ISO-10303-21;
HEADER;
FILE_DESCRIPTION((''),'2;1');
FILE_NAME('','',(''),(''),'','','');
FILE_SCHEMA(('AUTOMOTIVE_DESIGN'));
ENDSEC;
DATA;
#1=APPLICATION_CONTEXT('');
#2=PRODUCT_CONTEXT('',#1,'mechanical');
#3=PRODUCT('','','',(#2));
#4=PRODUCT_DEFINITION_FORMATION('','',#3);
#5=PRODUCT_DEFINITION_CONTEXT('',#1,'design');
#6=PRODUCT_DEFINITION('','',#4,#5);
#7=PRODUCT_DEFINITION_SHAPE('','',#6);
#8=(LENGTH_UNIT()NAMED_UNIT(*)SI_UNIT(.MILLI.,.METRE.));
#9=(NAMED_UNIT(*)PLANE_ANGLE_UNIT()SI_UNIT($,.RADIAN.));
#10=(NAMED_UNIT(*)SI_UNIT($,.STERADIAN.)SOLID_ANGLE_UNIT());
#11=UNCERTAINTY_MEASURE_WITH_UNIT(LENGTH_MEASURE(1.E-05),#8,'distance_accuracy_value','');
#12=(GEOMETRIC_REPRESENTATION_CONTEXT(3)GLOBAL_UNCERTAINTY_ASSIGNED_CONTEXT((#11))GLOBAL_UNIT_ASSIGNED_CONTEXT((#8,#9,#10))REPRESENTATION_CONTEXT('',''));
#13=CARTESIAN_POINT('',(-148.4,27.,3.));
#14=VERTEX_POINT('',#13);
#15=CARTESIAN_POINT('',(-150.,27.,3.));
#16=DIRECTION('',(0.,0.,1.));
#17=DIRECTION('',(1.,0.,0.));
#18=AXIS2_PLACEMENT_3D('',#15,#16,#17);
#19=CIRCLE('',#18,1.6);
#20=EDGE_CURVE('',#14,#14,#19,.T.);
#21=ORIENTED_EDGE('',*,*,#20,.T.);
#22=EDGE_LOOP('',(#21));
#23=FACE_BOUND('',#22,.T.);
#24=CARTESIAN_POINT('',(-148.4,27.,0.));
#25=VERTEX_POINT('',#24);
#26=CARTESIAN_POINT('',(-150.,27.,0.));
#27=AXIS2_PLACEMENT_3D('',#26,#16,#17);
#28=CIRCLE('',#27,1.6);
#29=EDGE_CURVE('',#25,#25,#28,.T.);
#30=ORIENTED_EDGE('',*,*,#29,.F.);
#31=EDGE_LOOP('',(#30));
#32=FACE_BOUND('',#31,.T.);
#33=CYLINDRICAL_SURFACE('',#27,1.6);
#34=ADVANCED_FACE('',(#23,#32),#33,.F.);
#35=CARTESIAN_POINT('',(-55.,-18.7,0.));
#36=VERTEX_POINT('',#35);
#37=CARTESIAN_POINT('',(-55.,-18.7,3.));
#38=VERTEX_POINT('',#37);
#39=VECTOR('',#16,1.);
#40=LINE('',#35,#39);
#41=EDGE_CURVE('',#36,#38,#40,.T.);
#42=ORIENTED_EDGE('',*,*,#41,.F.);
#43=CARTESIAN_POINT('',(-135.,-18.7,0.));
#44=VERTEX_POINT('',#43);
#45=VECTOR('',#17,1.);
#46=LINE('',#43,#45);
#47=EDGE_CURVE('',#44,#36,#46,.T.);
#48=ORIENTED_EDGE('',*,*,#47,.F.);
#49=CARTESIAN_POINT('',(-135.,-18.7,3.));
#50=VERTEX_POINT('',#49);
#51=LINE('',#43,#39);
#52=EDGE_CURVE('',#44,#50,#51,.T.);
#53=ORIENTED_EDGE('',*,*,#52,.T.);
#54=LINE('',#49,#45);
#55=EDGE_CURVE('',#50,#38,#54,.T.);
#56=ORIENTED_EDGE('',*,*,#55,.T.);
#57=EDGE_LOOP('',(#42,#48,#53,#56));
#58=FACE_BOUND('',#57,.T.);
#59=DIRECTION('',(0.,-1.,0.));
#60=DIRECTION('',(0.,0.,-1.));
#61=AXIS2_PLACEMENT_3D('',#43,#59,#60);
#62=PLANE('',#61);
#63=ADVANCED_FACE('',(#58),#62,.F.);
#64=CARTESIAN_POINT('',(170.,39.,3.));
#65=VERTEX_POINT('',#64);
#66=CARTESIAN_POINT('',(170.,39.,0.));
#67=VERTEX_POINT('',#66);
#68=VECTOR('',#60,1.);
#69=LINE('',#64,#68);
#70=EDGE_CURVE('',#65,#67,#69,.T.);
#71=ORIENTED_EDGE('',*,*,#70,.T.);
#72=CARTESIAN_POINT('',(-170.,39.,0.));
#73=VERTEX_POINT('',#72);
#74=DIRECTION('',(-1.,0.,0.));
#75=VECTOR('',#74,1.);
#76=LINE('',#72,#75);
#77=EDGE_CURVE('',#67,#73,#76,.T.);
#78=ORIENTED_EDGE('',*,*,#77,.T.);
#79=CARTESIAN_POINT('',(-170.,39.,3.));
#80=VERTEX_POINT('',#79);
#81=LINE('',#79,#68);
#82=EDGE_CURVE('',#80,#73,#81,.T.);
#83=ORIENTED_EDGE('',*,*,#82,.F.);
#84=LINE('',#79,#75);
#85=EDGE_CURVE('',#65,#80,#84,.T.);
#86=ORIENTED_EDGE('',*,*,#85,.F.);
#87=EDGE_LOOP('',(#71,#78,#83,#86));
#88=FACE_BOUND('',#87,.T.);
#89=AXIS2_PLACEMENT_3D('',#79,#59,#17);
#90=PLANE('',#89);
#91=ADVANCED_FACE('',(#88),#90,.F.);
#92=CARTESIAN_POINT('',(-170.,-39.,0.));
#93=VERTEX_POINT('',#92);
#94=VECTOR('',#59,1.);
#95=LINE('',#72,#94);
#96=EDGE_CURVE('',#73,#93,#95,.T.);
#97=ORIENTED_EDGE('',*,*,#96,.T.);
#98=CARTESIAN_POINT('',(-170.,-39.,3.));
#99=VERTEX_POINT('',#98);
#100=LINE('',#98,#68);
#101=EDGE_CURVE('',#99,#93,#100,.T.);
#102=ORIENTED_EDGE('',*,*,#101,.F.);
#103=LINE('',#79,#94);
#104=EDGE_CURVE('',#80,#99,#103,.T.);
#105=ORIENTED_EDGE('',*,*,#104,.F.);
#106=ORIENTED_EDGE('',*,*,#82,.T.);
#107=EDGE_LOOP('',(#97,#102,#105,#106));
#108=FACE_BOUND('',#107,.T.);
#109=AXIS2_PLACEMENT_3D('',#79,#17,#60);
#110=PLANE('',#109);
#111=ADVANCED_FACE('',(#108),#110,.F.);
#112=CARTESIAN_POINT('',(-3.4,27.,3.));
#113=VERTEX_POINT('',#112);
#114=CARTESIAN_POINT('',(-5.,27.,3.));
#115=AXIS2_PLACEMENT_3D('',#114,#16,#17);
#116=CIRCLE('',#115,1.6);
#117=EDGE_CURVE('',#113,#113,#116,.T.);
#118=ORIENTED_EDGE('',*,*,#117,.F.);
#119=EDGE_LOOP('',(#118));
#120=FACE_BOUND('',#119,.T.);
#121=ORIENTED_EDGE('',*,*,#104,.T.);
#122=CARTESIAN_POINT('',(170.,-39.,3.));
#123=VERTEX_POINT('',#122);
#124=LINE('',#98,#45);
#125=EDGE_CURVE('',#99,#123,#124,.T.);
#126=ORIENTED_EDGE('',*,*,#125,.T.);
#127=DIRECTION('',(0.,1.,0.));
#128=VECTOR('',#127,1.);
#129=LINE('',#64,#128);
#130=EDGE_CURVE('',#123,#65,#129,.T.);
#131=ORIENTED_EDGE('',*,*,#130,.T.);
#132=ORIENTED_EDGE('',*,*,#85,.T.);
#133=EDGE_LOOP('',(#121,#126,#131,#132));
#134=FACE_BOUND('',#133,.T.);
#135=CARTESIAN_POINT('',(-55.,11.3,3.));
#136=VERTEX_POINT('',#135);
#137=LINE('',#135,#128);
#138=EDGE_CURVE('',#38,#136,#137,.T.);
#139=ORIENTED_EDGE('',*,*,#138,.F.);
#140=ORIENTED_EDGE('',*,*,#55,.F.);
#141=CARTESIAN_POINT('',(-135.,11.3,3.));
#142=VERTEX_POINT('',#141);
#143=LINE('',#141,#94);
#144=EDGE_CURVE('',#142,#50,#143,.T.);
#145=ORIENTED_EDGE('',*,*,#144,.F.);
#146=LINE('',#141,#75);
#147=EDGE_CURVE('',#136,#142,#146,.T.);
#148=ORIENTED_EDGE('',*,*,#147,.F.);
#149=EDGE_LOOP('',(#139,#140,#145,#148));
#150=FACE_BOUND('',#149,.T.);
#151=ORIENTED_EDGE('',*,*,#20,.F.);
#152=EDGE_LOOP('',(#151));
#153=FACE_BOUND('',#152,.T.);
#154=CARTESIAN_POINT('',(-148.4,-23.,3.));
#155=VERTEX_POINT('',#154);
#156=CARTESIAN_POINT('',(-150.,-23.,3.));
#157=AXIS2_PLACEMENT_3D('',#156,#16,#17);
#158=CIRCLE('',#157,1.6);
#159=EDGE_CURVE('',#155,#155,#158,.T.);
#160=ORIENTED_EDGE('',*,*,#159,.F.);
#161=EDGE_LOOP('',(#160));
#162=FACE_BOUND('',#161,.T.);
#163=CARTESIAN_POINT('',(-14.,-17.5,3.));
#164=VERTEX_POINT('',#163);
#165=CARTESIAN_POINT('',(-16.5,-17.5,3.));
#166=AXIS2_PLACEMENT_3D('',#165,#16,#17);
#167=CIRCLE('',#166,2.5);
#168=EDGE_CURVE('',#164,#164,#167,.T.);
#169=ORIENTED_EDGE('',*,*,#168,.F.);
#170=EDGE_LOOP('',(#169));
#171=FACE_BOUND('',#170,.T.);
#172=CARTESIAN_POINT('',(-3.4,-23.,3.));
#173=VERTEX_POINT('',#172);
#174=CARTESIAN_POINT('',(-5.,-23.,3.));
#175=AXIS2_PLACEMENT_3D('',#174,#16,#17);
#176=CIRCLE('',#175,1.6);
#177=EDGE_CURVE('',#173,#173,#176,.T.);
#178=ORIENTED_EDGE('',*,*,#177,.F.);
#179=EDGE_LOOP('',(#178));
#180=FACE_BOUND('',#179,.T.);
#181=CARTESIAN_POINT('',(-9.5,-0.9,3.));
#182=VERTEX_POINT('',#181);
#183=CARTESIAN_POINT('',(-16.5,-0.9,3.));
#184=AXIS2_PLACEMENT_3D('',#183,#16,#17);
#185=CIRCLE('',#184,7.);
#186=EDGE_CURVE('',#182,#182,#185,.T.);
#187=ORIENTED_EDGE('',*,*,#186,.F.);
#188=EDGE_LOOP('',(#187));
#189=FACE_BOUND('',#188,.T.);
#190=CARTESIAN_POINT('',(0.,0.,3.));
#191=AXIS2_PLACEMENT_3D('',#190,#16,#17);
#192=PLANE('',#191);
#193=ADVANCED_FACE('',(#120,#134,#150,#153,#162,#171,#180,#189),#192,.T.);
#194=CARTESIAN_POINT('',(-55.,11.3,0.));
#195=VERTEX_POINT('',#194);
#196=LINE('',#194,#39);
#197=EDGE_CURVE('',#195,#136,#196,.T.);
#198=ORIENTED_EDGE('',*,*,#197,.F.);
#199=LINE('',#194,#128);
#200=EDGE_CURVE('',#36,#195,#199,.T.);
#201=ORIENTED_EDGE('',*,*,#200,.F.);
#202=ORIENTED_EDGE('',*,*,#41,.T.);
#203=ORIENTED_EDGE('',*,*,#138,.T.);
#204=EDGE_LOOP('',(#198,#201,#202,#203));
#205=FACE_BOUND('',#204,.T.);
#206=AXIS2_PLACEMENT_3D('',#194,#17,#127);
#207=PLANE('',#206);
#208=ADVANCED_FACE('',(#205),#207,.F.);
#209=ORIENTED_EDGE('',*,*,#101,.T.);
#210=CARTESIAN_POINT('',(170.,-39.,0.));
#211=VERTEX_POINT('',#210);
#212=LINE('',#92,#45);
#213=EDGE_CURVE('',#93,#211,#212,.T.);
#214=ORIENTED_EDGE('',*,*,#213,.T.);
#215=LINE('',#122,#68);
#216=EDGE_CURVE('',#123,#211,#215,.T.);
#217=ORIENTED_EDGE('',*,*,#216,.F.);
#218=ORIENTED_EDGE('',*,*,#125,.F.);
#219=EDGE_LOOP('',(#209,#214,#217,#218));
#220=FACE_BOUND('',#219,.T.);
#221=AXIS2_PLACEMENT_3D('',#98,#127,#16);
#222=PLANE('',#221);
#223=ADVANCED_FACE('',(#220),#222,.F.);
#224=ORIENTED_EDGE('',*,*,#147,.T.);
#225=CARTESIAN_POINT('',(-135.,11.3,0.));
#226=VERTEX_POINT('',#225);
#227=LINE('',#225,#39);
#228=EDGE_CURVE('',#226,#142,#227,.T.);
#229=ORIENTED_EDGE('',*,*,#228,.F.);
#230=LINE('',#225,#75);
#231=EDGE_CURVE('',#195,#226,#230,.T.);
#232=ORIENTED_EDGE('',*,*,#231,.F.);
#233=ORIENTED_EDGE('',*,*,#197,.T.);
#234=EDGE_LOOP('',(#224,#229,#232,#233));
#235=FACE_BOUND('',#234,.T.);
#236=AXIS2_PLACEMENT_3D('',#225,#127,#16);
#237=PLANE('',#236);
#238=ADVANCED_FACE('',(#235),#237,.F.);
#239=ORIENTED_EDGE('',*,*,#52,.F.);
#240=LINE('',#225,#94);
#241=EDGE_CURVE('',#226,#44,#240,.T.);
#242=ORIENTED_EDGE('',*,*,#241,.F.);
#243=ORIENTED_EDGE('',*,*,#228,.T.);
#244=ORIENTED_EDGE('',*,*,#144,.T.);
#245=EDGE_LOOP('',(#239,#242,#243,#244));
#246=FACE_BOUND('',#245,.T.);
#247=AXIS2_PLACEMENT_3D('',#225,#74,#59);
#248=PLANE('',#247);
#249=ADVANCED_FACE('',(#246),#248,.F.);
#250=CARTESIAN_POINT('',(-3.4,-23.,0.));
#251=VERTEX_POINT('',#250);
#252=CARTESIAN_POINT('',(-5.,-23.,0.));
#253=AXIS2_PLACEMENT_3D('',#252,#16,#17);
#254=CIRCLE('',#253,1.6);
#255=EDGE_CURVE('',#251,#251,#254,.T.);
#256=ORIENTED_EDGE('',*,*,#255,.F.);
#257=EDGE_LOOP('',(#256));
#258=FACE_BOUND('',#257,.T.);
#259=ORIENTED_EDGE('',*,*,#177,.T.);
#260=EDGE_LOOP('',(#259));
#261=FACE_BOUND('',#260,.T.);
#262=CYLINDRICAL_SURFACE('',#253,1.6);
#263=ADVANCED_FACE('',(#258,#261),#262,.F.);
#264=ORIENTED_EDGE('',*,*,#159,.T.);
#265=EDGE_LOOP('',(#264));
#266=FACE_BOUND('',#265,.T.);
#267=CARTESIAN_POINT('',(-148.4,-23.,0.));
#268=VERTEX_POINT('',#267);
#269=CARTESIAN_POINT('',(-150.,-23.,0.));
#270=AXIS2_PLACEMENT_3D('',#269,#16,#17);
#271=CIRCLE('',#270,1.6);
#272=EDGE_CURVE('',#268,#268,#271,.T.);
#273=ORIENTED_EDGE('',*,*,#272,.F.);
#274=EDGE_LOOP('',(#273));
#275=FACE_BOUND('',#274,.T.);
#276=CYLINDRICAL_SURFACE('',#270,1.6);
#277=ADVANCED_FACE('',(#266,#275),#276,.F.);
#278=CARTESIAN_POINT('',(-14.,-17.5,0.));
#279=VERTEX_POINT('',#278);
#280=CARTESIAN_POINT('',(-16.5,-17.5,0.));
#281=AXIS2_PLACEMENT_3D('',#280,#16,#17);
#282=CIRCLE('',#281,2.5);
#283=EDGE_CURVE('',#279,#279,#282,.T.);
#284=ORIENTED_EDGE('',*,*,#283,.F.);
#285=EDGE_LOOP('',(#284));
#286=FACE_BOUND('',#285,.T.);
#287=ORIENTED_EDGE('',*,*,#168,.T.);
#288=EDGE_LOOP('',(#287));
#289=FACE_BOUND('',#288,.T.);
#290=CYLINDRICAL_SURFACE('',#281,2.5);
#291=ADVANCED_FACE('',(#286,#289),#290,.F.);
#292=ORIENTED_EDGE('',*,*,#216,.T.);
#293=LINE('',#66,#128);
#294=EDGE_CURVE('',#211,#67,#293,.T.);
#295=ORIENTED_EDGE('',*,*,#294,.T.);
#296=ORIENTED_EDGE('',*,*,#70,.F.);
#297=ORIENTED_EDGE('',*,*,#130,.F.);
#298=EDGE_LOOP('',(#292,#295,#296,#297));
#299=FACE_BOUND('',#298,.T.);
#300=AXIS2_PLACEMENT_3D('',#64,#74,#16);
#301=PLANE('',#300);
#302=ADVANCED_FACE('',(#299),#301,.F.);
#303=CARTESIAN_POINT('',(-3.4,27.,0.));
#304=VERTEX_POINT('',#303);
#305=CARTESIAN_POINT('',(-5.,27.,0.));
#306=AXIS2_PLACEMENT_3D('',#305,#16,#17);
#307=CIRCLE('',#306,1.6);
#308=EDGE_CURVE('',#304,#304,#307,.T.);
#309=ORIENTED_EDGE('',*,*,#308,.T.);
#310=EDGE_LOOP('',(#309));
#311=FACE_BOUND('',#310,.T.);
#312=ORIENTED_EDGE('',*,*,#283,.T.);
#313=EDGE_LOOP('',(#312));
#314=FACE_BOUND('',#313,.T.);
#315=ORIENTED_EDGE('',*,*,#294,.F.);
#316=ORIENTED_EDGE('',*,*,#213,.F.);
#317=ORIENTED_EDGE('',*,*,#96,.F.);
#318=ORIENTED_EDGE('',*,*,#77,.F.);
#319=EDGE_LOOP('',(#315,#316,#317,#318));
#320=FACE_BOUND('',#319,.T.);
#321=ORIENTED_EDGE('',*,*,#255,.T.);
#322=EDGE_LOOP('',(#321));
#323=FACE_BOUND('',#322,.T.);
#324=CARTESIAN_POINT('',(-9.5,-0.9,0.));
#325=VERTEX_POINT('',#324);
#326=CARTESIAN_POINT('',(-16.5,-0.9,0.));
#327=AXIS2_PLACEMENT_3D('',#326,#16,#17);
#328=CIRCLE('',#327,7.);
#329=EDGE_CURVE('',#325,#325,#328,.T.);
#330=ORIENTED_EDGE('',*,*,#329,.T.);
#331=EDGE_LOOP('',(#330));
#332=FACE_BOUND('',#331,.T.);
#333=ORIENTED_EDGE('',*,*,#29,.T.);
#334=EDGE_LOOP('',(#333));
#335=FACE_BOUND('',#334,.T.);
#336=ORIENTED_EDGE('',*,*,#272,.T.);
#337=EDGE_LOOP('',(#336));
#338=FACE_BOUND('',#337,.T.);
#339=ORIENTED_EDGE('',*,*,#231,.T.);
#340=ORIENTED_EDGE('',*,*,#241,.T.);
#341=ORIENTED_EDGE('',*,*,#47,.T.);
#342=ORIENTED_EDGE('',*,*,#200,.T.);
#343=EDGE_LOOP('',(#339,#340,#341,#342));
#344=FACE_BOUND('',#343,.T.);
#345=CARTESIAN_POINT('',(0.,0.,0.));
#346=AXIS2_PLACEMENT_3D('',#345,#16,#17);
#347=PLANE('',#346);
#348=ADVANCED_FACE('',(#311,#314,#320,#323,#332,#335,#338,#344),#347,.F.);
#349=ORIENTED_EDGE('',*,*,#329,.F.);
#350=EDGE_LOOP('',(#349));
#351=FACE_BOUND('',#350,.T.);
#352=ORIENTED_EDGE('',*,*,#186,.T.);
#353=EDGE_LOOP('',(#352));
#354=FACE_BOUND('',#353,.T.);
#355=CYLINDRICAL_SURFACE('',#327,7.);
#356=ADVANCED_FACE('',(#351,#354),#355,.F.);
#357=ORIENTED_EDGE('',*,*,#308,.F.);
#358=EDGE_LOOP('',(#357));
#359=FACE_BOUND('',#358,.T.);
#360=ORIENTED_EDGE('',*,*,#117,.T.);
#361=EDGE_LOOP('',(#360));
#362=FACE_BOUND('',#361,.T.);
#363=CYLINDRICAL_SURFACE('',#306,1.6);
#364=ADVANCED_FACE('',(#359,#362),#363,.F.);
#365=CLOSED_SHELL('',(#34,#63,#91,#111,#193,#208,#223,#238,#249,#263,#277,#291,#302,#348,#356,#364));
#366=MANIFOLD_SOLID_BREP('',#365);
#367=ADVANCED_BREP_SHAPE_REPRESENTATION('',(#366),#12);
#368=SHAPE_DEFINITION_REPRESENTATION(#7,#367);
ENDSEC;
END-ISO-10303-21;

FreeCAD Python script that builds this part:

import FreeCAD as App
import Part
import Sketcher
Q = App.Units.Quantity


def add_polygon(sketch, points):
    """Adds a closed chain of lines whose ends are joined by coincident constraints."""
    first, n = sketch.GeometryCount, len(points)
    for a, b in zip(points, points[1:] + points[:1]):
        sketch.addGeometry(Part.LineSegment(App.Vector(*a, 0), App.Vector(*b, 0)), False)
    for i in range(n):
        sketch.addConstraint(Sketcher.Constraint("Coincident", first + i, 2, first + (i + 1) % n, 1))

doc = App.newDocument("Part")
body = doc.addObject("PartDesign::Body", "Body")

sketch1 = body.newObject("Sketcher::SketchObject", "Sketch")
sketch1.AttachmentSupport = (doc.getObject("XY_Plane"), [""])
sketch1.MapMode = "FlatFace"
add_polygon(sketch1, [(-170, 39), (-170, -39), (170, -39), (170, 39)])
sketch1.addConstraint([
    Sketcher.Constraint("Vertical", 0),
    Sketcher.Constraint("Horizontal", 1),
    Sketcher.Constraint("Vertical", 2),
    Sketcher.Constraint("Horizontal", 3),
    Sketcher.Constraint("Symmetric", 0, 2, 2, 2, -1, 1),
    Sketcher.Constraint("DistanceX", 1, 1, 1, 2, Q("340 mm")),
    Sketcher.Constraint("DistanceY", 0, 2, 0, 1, Q("78 mm")),
])
pad1 = body.newObject("PartDesign::Pad", "Pad")
pad1.Profile = sketch1
pad1.Length = 3

sketch2 = body.newObject("Sketcher::SketchObject", "Sketch001")
sketch2.AttachmentSupport = (doc.getObject("XY_Plane"), [""])
sketch2.MapMode = "FlatFace"
sketch2.AttachmentOffset = App.Placement(App.Vector(0, 0, 3), App.Rotation())
sketch2.addGeometry([
    Part.Circle(App.Vector(-150, 27, 0), App.Vector(0, 0, 1), 1.6),
    Part.Circle(App.Vector(-150, -23, 0), App.Vector(0, 0, 1), 1.6),
    Part.Circle(App.Vector(-5, 27, 0), App.Vector(0, 0, 1), 1.6),
    Part.Circle(App.Vector(-5, -23, 0), App.Vector(0, 0, 1), 1.6),
], False)
sketch2.addConstraint([
    Sketcher.Constraint("Equal", 0, 1),
    Sketcher.Constraint("Equal", 1, 2),
    Sketcher.Constraint("Equal", 2, 3),
    Sketcher.Constraint("Horizontal", 0, 3, 2, 3),
    Sketcher.Constraint("Horizontal", 1, 3, 3, 3),
    Sketcher.Constraint("Vertical", 0, 3, 1, 3),
    Sketcher.Constraint("Vertical", 2, 3, 3, 3),
    Sketcher.Constraint("Diameter", 0, Q("3.2 mm")),
    Sketcher.Constraint("DistanceX", 0, 3, -1, 1, Q("150 mm")),
    Sketcher.Constraint("DistanceY", -1, 1, 0, 3, Q("27 mm")),
    Sketcher.Constraint("DistanceY", 1, 3, -1, 1, Q("23 mm")),
    Sketcher.Constraint("DistanceX", 2, 3, -1, 1, Q("5 mm")),
])
pocket1 = body.newObject("PartDesign::Pocket", "Pocket")
pocket1.Profile = sketch2
pocket1.Type = "ThroughAll"

sketch3 = body.newObject("Sketcher::SketchObject", "Sketch002")
sketch3.AttachmentSupport = (doc.getObject("XY_Plane"), [""])
sketch3.MapMode = "FlatFace"
sketch3.AttachmentOffset = App.Placement(App.Vector(0, 0, 3), App.Rotation())
add_polygon(sketch3, [(-135, 11.3), (-135, -18.7), (-55, -18.7), (-55, 11.3)])
sketch3.addConstraint([
    Sketcher.Constraint("Vertical", 0),
    Sketcher.Constraint("Horizontal", 1),
    Sketcher.Constraint("Vertical", 2),
    Sketcher.Constraint("Horizontal", 3),
    Sketcher.Constraint("DistanceX", 1, 1, 1, 2, Q("80 mm")),
    Sketcher.Constraint("DistanceY", 0, 2, 0, 1, Q("30 mm")),
    Sketcher.Constraint("DistanceX", 0, 2, -1, 1, Q("135 mm")),
    Sketcher.Constraint("DistanceY", 0, 2, -1, 1, Q("18.7 mm")),
])
pocket2 = body.newObject("PartDesign::Pocket", "Pocket001")
pocket2.Profile = sketch3
pocket2.Type = "ThroughAll"

sketch4 = body.newObject("Sketcher::SketchObject", "Sketch003")
sketch4.AttachmentSupport = (doc.getObject("XY_Plane"), [""])
sketch4.MapMode = "FlatFace"
sketch4.AttachmentOffset = App.Placement(App.Vector(0, 0, 3), App.Rotation())
sketch4.addGeometry([
    Part.Circle(App.Vector(-16.5, -0.9, 0), App.Vector(0, 0, 1), 7),
    Part.Circle(App.Vector(-16.5, -17.5, 0), App.Vector(0, 0, 1), 2.5),
], False)
sketch4.addConstraint([
    Sketcher.Constraint("Vertical", 0, 3, 1, 3),
    Sketcher.Constraint("Diameter", 0, Q("14 mm")),
    Sketcher.Constraint("Diameter", 1, Q("5 mm")),
    Sketcher.Constraint("DistanceX", 0, 3, -1, 1, Q("16.5 mm")),
    Sketcher.Constraint("DistanceY", 0, 3, -1, 1, Q("0.9 mm")),
    Sketcher.Constraint("DistanceY", 1, 3, -1, 1, Q("17.5 mm")),
])
pocket3 = body.newObject("PartDesign::Pocket", "Pocket002")
pocket3.Profile = sketch4
pocket3.Type = "ThroughAll"

doc.recompute()
